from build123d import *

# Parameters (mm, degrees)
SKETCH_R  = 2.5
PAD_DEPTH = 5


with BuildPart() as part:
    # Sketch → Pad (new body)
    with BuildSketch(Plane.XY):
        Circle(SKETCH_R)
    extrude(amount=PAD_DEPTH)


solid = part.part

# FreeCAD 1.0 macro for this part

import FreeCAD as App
import Part
import Sketcher

V = App.Vector
Q = App.Units.Quantity

doc = App.newDocument("Part")
body = doc.addObject("PartDesign::Body", "Body")

# Sketch on XY plane
sketch1 = body.newObject("Sketcher::SketchObject", "Sketch")
sketch1.AttachmentSupport = (doc.getObject("XY_Plane"), [""])
sketch1.MapMode = "FlatFace"
sketch1.addGeometry(Part.Circle(V(0, 0, 0), V(0, 0, 1), 2.5), False)
sketch1.addConstraint(Sketcher.Constraint("Coincident", 0, 3, -1, 1))
sketch1.addConstraint(Sketcher.Constraint("Diameter", 0, Q("5 mm")))
pad1 = body.newObject("PartDesign::Pad", "Pad")
pad1.Profile = sketch1
pad1.Length = 5

doc.recompute()
